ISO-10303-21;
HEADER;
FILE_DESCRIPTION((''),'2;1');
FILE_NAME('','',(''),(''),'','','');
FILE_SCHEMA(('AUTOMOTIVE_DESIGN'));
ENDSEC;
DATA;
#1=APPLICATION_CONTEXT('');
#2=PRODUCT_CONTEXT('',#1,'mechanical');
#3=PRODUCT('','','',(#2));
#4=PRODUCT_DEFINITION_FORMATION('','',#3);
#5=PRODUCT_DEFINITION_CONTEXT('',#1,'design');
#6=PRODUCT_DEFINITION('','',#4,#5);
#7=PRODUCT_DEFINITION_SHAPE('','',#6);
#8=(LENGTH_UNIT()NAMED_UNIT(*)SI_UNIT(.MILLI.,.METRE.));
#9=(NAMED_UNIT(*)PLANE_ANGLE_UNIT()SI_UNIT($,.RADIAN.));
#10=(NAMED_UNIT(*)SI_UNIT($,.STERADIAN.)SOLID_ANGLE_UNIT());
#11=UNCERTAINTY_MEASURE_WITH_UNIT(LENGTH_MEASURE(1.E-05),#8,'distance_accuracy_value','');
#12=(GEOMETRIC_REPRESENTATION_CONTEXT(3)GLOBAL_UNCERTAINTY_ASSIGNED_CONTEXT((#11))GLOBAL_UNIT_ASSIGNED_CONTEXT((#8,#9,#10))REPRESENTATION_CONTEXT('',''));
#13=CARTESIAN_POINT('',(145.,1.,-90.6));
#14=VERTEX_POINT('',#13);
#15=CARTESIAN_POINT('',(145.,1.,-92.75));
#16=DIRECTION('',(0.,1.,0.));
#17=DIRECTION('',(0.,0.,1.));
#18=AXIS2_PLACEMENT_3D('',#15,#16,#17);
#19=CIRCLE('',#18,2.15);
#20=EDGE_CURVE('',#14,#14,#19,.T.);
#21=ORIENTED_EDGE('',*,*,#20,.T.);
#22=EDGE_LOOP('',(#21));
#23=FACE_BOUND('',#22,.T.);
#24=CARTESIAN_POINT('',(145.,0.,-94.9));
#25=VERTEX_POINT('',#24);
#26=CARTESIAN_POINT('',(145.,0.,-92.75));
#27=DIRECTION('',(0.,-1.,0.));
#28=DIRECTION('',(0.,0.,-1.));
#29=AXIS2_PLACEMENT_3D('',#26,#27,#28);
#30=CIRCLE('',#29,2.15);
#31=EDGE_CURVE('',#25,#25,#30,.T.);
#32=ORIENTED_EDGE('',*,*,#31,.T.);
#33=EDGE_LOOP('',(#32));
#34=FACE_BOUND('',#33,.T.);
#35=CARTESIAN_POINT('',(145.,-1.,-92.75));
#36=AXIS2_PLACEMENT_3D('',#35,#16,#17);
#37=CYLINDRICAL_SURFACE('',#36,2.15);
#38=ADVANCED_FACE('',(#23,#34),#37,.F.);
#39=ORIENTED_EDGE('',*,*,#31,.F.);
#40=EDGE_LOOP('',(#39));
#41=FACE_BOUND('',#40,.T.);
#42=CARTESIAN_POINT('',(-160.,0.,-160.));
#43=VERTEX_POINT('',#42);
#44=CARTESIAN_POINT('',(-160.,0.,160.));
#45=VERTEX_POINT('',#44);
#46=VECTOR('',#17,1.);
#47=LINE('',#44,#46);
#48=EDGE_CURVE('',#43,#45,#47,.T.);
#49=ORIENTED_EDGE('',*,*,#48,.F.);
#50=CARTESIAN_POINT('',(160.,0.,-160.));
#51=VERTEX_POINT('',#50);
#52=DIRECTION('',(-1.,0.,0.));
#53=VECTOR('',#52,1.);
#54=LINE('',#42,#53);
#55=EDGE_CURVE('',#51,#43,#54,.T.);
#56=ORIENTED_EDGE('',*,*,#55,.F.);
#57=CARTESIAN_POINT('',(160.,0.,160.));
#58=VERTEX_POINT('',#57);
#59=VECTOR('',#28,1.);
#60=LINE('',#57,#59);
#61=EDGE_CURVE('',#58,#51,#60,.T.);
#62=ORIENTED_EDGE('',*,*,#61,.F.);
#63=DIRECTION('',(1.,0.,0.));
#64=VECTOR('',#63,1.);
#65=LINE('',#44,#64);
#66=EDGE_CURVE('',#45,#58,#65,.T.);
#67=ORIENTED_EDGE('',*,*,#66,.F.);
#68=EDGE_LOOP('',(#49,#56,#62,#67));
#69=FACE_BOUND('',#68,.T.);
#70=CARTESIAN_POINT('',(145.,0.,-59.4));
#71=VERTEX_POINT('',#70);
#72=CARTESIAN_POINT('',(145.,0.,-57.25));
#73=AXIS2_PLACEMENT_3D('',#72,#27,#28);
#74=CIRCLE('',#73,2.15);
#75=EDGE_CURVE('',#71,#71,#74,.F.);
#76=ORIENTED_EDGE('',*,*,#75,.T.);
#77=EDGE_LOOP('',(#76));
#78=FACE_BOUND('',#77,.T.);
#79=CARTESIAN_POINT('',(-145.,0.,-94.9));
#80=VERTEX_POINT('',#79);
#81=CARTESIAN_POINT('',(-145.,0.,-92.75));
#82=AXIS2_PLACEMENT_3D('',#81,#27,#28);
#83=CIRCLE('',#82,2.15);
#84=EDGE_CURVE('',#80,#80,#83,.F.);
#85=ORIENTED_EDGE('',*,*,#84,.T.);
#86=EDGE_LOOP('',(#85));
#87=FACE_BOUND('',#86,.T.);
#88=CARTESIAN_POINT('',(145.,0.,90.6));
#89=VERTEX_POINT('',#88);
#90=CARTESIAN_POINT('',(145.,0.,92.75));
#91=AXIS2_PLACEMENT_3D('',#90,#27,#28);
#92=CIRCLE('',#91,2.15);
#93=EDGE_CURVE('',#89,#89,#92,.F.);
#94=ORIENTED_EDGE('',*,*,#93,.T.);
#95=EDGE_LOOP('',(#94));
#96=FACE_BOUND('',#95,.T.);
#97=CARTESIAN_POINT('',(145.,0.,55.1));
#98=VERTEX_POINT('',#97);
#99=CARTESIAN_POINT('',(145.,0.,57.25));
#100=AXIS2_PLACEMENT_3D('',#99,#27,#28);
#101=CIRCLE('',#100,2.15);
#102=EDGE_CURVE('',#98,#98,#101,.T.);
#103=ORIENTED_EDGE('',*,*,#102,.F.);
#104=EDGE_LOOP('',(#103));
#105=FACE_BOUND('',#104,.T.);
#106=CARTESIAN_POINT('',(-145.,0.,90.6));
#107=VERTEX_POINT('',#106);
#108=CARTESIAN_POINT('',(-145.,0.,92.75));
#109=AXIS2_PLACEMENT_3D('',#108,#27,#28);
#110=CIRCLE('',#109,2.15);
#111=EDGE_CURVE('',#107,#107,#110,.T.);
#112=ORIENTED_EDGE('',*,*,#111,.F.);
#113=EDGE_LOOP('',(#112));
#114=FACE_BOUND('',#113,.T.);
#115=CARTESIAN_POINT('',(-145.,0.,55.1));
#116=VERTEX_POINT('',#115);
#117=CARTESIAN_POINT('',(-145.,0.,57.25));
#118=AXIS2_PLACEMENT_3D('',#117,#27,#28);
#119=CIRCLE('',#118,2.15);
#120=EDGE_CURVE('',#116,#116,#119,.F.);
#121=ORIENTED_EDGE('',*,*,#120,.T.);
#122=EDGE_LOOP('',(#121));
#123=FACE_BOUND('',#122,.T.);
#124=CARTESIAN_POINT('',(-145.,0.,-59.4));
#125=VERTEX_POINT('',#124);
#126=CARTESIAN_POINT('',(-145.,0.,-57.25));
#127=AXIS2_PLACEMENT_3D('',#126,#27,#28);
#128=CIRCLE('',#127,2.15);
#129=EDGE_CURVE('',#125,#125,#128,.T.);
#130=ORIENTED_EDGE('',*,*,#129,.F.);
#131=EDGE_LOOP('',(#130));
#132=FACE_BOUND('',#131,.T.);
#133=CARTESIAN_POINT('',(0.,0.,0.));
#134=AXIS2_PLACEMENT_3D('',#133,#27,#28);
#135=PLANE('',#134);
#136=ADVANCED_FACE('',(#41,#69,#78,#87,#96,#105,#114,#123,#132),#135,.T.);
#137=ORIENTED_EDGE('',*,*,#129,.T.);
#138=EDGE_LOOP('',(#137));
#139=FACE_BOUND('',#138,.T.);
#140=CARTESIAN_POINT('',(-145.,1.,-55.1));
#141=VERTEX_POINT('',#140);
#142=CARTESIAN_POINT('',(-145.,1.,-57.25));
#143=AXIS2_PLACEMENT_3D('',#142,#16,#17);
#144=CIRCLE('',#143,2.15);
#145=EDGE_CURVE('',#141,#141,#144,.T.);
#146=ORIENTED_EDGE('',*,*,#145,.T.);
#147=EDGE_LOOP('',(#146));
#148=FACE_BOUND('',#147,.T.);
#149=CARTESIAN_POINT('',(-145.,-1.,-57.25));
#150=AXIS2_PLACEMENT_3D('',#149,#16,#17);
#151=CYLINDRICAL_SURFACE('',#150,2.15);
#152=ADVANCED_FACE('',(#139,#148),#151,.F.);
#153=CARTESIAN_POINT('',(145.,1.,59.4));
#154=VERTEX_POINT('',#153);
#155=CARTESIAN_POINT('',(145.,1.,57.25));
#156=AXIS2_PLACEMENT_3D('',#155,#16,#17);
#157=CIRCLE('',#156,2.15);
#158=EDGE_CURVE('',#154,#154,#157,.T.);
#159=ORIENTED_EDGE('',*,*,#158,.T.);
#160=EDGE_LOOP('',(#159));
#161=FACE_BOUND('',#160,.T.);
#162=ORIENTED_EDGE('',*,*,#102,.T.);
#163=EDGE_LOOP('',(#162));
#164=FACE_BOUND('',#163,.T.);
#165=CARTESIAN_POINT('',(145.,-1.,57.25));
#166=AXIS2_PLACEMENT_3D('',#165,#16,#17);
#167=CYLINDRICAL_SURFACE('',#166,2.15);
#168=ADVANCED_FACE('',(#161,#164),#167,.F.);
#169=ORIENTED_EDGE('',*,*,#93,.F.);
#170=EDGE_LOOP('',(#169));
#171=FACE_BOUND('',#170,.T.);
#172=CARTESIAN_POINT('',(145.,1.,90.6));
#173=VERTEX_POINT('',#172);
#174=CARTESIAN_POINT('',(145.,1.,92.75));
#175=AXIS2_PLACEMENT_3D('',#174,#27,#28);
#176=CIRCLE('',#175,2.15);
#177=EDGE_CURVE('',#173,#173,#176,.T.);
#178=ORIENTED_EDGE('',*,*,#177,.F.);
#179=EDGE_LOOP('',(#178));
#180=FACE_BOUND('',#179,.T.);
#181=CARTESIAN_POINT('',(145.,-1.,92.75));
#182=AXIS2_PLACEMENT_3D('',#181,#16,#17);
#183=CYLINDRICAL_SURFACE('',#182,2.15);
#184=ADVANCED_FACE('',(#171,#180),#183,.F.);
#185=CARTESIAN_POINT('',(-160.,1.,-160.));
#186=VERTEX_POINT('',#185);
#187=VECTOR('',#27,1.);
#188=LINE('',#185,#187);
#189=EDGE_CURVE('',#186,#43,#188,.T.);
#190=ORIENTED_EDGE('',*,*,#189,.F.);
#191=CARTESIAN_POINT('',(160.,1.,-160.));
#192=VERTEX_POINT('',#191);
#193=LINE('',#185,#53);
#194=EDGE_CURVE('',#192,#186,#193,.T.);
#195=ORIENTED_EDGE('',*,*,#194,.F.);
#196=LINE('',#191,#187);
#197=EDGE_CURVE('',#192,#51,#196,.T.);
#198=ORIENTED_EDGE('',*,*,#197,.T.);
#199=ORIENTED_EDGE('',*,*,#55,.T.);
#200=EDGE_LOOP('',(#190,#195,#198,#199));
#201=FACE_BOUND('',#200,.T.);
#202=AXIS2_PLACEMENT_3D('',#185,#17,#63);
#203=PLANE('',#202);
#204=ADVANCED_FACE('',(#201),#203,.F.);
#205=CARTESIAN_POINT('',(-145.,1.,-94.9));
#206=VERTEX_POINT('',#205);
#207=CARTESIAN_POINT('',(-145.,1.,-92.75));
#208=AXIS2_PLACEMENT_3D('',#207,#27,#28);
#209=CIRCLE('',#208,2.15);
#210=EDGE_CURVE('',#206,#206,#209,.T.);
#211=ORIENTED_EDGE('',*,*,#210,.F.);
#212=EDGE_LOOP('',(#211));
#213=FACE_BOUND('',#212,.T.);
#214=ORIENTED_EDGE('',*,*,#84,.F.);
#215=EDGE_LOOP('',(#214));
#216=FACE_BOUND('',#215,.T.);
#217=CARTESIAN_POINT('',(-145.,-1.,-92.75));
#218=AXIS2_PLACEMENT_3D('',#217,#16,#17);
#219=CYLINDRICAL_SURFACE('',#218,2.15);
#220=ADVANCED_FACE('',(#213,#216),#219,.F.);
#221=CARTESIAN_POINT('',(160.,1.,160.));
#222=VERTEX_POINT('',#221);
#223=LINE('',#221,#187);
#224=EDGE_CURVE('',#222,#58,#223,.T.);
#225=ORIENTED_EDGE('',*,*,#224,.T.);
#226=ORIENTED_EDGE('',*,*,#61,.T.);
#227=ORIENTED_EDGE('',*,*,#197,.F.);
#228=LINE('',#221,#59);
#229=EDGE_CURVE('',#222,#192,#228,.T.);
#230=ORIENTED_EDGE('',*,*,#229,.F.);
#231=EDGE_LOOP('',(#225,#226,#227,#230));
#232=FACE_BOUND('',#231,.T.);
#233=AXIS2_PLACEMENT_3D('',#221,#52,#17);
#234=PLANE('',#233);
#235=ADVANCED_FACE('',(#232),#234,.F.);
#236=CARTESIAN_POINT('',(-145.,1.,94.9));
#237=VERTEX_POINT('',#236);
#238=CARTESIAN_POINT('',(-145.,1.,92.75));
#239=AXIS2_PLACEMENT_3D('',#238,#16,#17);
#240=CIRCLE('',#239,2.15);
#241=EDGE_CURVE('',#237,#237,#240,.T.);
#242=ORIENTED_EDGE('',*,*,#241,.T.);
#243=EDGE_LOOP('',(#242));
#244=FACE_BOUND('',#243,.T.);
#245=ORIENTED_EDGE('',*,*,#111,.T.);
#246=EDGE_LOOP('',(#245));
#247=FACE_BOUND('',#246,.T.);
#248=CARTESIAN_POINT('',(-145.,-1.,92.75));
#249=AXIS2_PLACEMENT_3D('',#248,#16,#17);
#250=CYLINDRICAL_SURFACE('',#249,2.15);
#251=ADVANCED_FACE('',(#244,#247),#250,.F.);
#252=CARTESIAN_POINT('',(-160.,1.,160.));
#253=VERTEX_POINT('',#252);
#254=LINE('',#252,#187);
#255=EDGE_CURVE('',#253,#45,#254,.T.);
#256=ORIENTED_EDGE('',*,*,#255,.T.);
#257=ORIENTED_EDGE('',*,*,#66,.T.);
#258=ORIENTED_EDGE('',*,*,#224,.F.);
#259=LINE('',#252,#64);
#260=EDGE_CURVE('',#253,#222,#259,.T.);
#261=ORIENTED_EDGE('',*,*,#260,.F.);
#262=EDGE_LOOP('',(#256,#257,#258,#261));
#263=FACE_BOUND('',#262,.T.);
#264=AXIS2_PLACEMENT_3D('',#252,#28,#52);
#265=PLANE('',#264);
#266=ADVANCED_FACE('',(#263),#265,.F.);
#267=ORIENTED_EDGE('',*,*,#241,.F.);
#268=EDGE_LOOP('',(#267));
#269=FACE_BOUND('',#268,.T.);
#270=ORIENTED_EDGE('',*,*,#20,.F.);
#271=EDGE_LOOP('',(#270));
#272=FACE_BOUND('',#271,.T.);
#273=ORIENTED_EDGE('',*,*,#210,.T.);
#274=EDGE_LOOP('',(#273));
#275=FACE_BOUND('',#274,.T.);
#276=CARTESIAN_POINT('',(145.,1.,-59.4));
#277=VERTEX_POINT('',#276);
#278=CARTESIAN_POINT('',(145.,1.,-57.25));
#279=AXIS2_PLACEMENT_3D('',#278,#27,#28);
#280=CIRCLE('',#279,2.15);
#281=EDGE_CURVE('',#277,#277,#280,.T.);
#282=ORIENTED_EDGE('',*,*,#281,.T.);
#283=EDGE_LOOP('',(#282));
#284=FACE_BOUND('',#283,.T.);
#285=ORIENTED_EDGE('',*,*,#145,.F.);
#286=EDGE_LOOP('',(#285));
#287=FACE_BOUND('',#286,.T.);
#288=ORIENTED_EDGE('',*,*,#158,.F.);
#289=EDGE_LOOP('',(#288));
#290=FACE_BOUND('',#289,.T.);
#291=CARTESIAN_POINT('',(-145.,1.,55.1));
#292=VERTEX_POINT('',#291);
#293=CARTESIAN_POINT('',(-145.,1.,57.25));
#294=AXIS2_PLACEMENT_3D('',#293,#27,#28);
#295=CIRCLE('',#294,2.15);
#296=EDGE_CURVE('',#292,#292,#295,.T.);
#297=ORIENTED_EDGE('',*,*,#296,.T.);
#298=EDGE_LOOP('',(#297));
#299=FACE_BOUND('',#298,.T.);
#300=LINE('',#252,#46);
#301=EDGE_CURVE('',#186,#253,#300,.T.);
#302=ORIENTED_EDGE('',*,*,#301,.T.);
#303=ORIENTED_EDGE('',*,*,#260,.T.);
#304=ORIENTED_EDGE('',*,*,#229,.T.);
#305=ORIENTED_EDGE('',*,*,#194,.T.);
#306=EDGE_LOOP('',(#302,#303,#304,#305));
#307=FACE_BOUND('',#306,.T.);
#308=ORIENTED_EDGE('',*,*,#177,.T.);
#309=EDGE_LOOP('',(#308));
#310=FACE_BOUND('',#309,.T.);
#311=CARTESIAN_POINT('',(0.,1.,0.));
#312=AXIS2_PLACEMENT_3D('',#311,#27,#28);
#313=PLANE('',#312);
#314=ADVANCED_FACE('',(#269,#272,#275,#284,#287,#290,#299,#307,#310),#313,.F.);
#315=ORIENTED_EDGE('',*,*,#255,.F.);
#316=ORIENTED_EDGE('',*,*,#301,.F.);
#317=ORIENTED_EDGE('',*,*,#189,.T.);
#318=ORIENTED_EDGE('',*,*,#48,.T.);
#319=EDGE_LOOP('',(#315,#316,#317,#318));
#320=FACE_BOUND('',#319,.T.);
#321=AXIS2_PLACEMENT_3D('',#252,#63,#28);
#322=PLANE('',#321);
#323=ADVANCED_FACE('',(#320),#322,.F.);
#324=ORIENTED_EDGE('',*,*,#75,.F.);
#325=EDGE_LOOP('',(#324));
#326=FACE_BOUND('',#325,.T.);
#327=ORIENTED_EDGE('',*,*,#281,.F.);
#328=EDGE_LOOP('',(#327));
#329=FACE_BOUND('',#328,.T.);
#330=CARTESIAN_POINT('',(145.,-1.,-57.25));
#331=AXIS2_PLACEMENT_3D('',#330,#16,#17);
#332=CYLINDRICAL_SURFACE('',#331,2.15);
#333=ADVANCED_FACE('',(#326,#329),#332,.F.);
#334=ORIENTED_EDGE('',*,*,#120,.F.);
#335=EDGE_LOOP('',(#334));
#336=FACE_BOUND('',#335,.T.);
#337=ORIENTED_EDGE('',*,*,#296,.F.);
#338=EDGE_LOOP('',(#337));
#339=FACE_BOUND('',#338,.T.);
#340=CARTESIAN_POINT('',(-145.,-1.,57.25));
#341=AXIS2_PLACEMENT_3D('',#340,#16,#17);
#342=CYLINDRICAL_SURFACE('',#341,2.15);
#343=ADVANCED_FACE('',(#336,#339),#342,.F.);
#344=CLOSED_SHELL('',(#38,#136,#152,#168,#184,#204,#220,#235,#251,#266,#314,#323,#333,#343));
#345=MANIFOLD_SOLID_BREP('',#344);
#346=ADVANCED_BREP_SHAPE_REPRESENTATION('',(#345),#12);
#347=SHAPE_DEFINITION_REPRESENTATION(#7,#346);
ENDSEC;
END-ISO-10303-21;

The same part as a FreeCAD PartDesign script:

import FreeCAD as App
import Part
import Sketcher

V = App.Vector


def add_polygon(sketch, points):
    """Adds a closed chain of lines whose ends are joined by coincident constraints."""
    first, n = sketch.GeometryCount, len(points)
    for a, b in zip(points, points[1:] + points[:1]):
        sketch.addGeometry(Part.LineSegment(App.Vector(*a, 0), App.Vector(*b, 0)), False)
    for i in range(n):
        sketch.addConstraint(Sketcher.Constraint("Coincident", first + i, 2, first + (i + 1) % n, 1))

doc = App.newDocument("Part")
body = doc.addObject("PartDesign::Body", "Body")

# Sketch on XZ plane
sketch1 = doc.addObject("Sketcher::SketchObject", "Sketch")
body.addObject(sketch1)
sketch1.AttachmentSupport = (doc.XZ_Plane, [""])
sketch1.MapMode = "FlatFace"
add_polygon(sketch1, [(-160, -160), (-160, 160), (160, 160), (160, -160)])  # lines 0-3
sketch1.addConstraint(Sketcher.Constraint("Vertical", 0))
sketch1.addConstraint(Sketcher.Constraint("Horizontal", 1))
sketch1.addConstraint(Sketcher.Constraint("Vertical", 2))
sketch1.addConstraint(Sketcher.Constraint("Horizontal", 3))
sketch1.addConstraint(Sketcher.Constraint("Symmetric", 0, 2, 2, 2, -1, 1))
sketch1.addConstraint(Sketcher.Constraint("Equal", 3, 0))
sketch1.addConstraint(Sketcher.Constraint("DistanceX", 1, 1, 1, 2, 320.0))
pad1 = doc.addObject("PartDesign::Pad", "Pad")
body.addObject(pad1)
pad1.Profile = sketch1
pad1.Length = 1
pad1.Reversed = True

# Sketch on XZ plane
sketch2 = doc.addObject("Sketcher::SketchObject", "Sketch001")
body.addObject(sketch2)
sketch2.AttachmentSupport = (doc.XZ_Plane, [""])
sketch2.MapMode = "FlatFace"
sketch2.AttachmentOffset = App.Placement(V(0, 0, -1), App.Rotation())
sketch2.addGeometry(Part.Circle(V(145, -92.75, 0), V(0, 0, 1), 2.15), False)
sketch2.addGeometry(Part.Circle(V(145, -57.25, 0), V(0, 0, 1), 2.15), False)
sketch2.addGeometry(Part.Circle(V(145, 57.25, 0), V(0, 0, 1), 2.15), False)
sketch2.addGeometry(Part.Circle(V(145, 92.75, 0), V(0, 0, 1), 2.15), False)
sketch2.addGeometry(Part.Circle(V(-145, -92.75, 0), V(0, 0, 1), 2.15), False)
sketch2.addGeometry(Part.Circle(V(-145, -57.25, 0), V(0, 0, 1), 2.15), False)
sketch2.addGeometry(Part.Circle(V(-145, 92.75, 0), V(0, 0, 1), 2.15), False)
sketch2.addGeometry(Part.Circle(V(-145, 57.25, 0), V(0, 0, 1), 2.15), False)
sketch2.addConstraint(Sketcher.Constraint("Equal", 0, 1))
sketch2.addConstraint(Sketcher.Constraint("Equal", 1, 2))
sketch2.addConstraint(Sketcher.Constraint("Equal", 2, 3))
sketch2.addConstraint(Sketcher.Constraint("Equal", 3, 4))
sketch2.addConstraint(Sketcher.Constraint("Equal", 4, 5))
sketch2.addConstraint(Sketcher.Constraint("Equal", 5, 6))
sketch2.addConstraint(Sketcher.Constraint("Equal", 6, 7))
sketch2.addConstraint(Sketcher.Constraint("Symmetric", 3, 3, 4, 3, -1, 1))
sketch2.addConstraint(Sketcher.Constraint("Symmetric", 2, 3, 5, 3, -1, 1))
sketch2.addConstraint(Sketcher.Constraint("Symmetric", 0, 3, 6, 3, -1, 1))
sketch2.addConstraint(Sketcher.Constraint("Symmetric", 1, 3, 7, 3, -1, 1))
sketch2.addConstraint(Sketcher.Constraint("Symmetric", 0, 3, 4, 3, -2))
sketch2.addConstraint(Sketcher.Constraint("Symmetric", 1, 3, 5, 3, -2))
sketch2.addConstraint(Sketcher.Constraint("Vertical", 0, 3, 1, 3))
sketch2.addConstraint(Sketcher.Constraint("Diameter", 0, 4.3))
sketch2.addConstraint(Sketcher.Constraint("DistanceX", -1, 1, 0, 3, 145.0))
sketch2.addConstraint(Sketcher.Constraint("DistanceY", 0, 3, 2, 3, 150.0))
sketch2.addConstraint(Sketcher.Constraint("DistanceY", 0, 3, 1, 3, 35.5))
pocket1 = doc.addObject("PartDesign::Pocket", "Pocket")
body.addObject(pocket1)
pocket1.Profile = sketch2
pocket1.Length = 2
pocket1.Reversed = True

doc.recompute()
